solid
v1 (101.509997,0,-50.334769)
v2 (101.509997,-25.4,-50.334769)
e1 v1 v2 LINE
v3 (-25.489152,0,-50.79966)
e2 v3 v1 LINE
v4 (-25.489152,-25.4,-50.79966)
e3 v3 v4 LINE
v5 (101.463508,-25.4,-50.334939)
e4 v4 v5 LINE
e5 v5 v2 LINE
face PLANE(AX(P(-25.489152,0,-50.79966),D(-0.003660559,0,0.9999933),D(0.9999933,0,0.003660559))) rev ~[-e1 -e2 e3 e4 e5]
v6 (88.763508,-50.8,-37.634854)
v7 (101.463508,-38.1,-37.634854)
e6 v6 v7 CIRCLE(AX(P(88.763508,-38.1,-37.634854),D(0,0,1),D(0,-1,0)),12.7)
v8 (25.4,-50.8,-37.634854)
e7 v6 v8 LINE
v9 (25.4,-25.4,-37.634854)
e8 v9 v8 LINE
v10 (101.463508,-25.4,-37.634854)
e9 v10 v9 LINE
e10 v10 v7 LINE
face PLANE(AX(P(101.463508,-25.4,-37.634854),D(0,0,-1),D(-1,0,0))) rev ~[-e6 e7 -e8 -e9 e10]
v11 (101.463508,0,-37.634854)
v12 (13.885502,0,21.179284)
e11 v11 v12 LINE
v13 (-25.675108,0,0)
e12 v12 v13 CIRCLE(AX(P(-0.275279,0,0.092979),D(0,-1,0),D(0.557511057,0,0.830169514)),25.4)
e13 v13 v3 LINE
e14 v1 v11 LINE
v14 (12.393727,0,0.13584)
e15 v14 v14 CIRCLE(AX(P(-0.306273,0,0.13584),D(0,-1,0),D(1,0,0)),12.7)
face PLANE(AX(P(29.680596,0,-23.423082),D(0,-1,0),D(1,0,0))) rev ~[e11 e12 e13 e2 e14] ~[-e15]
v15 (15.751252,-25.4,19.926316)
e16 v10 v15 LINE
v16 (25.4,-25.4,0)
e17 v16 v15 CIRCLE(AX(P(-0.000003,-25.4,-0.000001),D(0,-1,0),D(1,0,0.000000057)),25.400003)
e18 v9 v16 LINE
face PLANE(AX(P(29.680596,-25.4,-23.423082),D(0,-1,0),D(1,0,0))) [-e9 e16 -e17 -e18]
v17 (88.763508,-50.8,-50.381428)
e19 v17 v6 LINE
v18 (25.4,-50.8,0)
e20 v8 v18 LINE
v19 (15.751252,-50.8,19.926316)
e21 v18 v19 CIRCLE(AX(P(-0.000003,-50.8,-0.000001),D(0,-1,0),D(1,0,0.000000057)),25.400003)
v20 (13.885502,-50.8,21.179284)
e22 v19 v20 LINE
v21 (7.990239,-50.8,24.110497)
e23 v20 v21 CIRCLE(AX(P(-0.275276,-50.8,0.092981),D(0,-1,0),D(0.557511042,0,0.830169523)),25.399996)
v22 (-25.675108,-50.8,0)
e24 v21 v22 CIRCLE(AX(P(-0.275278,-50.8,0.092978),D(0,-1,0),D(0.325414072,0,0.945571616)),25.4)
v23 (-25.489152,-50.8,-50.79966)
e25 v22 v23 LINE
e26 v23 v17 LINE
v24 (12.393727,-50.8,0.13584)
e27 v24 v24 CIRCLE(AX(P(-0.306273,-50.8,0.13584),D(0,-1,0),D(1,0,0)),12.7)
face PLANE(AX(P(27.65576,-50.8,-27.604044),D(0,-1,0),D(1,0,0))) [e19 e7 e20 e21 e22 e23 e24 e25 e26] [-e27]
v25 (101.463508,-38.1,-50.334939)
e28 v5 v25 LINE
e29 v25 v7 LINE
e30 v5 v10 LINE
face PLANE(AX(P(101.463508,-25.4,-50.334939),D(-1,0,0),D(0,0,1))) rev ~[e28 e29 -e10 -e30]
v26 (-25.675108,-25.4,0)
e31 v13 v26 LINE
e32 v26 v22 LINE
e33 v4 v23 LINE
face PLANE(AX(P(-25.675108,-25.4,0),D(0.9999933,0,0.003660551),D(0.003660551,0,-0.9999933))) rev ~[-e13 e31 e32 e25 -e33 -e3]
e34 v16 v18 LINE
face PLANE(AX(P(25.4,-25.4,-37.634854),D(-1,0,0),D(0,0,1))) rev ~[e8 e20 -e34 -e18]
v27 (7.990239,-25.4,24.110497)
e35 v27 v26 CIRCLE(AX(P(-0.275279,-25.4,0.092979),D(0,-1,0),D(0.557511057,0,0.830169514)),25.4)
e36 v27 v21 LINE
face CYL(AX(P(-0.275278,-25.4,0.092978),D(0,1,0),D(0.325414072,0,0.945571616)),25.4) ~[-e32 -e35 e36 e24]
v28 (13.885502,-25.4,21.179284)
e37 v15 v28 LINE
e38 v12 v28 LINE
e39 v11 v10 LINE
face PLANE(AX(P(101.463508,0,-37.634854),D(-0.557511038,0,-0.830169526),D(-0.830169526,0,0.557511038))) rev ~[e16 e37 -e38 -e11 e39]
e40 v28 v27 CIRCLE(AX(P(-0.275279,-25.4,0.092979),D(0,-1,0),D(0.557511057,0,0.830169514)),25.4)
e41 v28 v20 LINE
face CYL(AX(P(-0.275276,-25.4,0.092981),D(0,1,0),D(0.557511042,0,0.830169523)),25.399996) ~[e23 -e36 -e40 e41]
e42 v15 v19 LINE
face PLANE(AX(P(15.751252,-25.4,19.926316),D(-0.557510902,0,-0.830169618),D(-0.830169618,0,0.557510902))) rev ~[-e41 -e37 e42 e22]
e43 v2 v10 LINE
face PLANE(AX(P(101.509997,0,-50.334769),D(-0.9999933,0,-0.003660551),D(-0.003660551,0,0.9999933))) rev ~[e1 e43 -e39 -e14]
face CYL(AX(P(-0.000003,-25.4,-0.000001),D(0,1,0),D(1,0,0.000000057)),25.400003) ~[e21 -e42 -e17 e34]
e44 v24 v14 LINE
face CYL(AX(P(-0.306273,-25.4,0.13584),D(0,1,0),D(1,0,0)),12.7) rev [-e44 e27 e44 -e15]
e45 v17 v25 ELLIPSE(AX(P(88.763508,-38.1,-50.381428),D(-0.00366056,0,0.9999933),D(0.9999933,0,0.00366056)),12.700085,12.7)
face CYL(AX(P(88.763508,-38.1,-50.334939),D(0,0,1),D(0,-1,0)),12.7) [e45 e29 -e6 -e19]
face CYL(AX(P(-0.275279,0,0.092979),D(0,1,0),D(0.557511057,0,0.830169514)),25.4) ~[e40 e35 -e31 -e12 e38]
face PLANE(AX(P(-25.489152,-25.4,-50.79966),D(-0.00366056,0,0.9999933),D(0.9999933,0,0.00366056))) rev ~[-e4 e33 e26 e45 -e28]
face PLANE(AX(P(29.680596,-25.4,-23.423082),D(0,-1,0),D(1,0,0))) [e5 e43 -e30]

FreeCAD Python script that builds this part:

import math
import FreeCAD as App
import Part
import Sketcher
from FreeCAD import Vector
Q = App.Units.Quantity


def edges_at(feature, points):
    """Names of the edges that pass closest to the given points."""
    edges = feature.Shape.Edges
    near = lambda p: min(range(len(edges)), key=lambda i: edges[i].distToShape(Part.Vertex(*p))[0])
    return sorted({f"Edge{near(p) + 1}" for p in points})

doc = App.newDocument("Part")
body = doc.addObject("PartDesign::Body", "Body")

sketch1 = doc.addObject("Sketcher::SketchObject", "Sketch")
body.addObject(sketch1)
sketch1.AttachmentSupport = (doc.XZ_Plane, [""])
sketch1.MapMode = "FlatFace"
sketch1.addGeometry(Part.LineSegment(Vector(101.463508, -37.634854, 0), Vector(13.885502, 21.179284, 0)), False)
sketch1.addGeometry(Part.ArcOfCircle(Part.Circle(Vector(-0.275279, 0.092979, 0), Vector(0, 0, 1), 25.4), math.radians(56.116155), math.radians(180.209736)), False)
sketch1.addGeometry(Part.LineSegment(Vector(-25.675108, 0, 0), Vector(-25.489152, -50.79966, 0)), False)
sketch1.addGeometry(Part.LineSegment(Vector(-25.489152, -50.79966, 0), Vector(101.509997, -50.334769, 0)), False)
sketch1.addGeometry(Part.LineSegment(Vector(101.509997, -50.334769, 0), Vector(101.463508, -37.634854, 0)), False)
sketch1.addGeometry(Part.Circle(Vector(-0.306273, 0.13584, 0), Vector(0, 0, 1), 12.7), False)
sketch1.addConstraint(Sketcher.Constraint("Tangent", 0, 2, 1, 1))
sketch1.addConstraint(Sketcher.Constraint("Tangent", 1, 2, 2, 1))
sketch1.addConstraint(Sketcher.Constraint("Coincident", 2, 2, 3, 1))
sketch1.addConstraint(Sketcher.Constraint("Coincident", 3, 2, 4, 1))
sketch1.addConstraint(Sketcher.Constraint("Coincident", 4, 2, 0, 1))
sketch1.addConstraint(Sketcher.Constraint("PointOnObject", 1, 2, -1))
sketch1.addConstraint(Sketcher.Constraint("Perpendicular", 2, 3))
sketch1.addConstraint(Sketcher.Constraint("Perpendicular", 3, 4))
sketch1.addConstraint(Sketcher.Constraint("Diameter", 5, Q("1 in")))
sketch1.addConstraint(Sketcher.Constraint("Radius", 1, Q("1 in")))
sketch1.addConstraint(Sketcher.Constraint("Distance", 2, Q("2 in")))
sketch1.addConstraint(Sketcher.Constraint("Distance", 3, Q("5 in")))
sketch1.addConstraint(Sketcher.Constraint("Distance", 4, Q("0.5 in")))
sketch1.addConstraint(Sketcher.Constraint("DistanceY", 2, 2, 5, 3, Q("50.9355 mm")))
sketch1.addConstraint(Sketcher.Constraint("DistanceX", 1, 3, -1, 1, Q("0.275279 mm")))
sketch1.addConstraint(Sketcher.Constraint("DistanceY", -1, 1, 1, 3, Q("0.092979 mm")))
sketch1.addConstraint(Sketcher.Constraint("DistanceX", 2, 2, 5, 3, Q("25.182879 mm")))
pad1 = doc.addObject("PartDesign::Pad", "Pad")
body.addObject(pad1)
pad1.Profile = sketch1
pad1.Length = Q("1 in")

sketch2 = doc.addObject("Sketcher::SketchObject", "Sketch001")
body.addObject(sketch2)
sketch2.AttachmentSupport = (doc.XZ_Plane, [""])
sketch2.MapMode = "FlatFace"
sketch2.AttachmentOffset = App.Placement(Vector(0, 0, 1 * 25.4), App.Rotation())
sketch2.addGeometry(Part.LineSegment(Vector(25.4, -37.634854, 0), Vector(25.4, 0, 0)), False)
sketch2.addGeometry(Part.ArcOfCircle(Part.Circle(Vector(-0.000003, -0.000001, 0), Vector(0, 0, 1), 25.400003), math.radians(0.000003), math.radians(51.674512)), False)
sketch2.addGeometry(Part.LineSegment(Vector(15.751252, 19.926316, 0), Vector(13.885502, 21.179284, 0)), False)
sketch2.addGeometry(Part.ArcOfCircle(Part.Circle(Vector(-0.275276, 0.092981, 0), Vector(0, 0, 1), 25.399996), math.radians(56.116156), math.radians(71.009339)), False)
sketch2.addGeometry(Part.ArcOfCircle(Part.Circle(Vector(-0.275278, 0.092978, 0), Vector(0, 0, 1), 25.4), math.radians(71.009337), math.radians(180.209735)), False)
sketch2.addGeometry(Part.LineSegment(Vector(-25.675108, 0, 0), Vector(-25.489152, -50.79966, 0)), False)
sketch2.addGeometry(Part.LineSegment(Vector(-25.489152, -50.79966, 0), Vector(101.463508, -50.334939, 0)), False)
sketch2.addGeometry(Part.LineSegment(Vector(101.463508, -50.334939, 0), Vector(101.463508, -37.634854, 0)), False)
sketch2.addGeometry(Part.LineSegment(Vector(101.463508, -37.634854, 0), Vector(25.4, -37.634854, 0)), False)
sketch2.addGeometry(Part.Circle(Vector(-0.306273, 0.13584, 0), Vector(0, 0, 1), 12.7), False)
sketch2.addConstraint(Sketcher.Constraint("Coincident", 0, 2, 1, 1))
sketch2.addConstraint(Sketcher.Constraint("Coincident", 1, 2, 2, 1))
sketch2.addConstraint(Sketcher.Constraint("Coincident", 2, 2, 3, 1))
sketch2.addConstraint(Sketcher.Constraint("Coincident", 3, 2, 4, 1))
sketch2.addConstraint(Sketcher.Constraint("Coincident", 4, 2, 5, 1))
sketch2.addConstraint(Sketcher.Constraint("Coincident", 5, 2, 6, 1))
sketch2.addConstraint(Sketcher.Constraint("Coincident", 6, 2, 7, 1))
sketch2.addConstraint(Sketcher.Constraint("Coincident", 7, 2, 8, 1))
sketch2.addConstraint(Sketcher.Constraint("Coincident", 8, 2, 0, 1))
sketch2.addConstraint(Sketcher.Constraint("Vertical", 0))
sketch2.addConstraint(Sketcher.Constraint("Vertical", 7))
sketch2.addConstraint(Sketcher.Constraint("Horizontal", 8))
sketch2.addConstraint(Sketcher.Constraint("Coincident", 1, 3, -1, 1))
sketch2.addConstraint(Sketcher.Constraint("Coincident", 4, 3, 3, 3))
sketch2.addConstraint(Sketcher.Constraint("PointOnObject", 0, 2, -1))
sketch2.addConstraint(Sketcher.Constraint("PointOnObject", 4, 2, -1))
sketch2.addConstraint(Sketcher.Constraint("Diameter", 9, Q("1 in")))
sketch2.addConstraint(Sketcher.Constraint("Radius", 1, Q("1.0000001 in")))
sketch2.addConstraint(Sketcher.Constraint("Radius", 3, Q("0.9999998 in")))
sketch2.addConstraint(Sketcher.Constraint("Distance", 5, Q("2 in")))
sketch2.addConstraint(Sketcher.Constraint("DistanceX", 8, 2, 8, 1, Q("76.063508 mm")))
sketch2.addConstraint(Sketcher.Constraint("DistanceY", 5, 2, 9, 3, Q("50.9355 mm")))
sketch2.addConstraint(Sketcher.Constraint("Distance", 6, Q("126.953511 mm")))
sketch2.addConstraint(Sketcher.Constraint("DistanceY", 0, 1, 0, 2, Q("37.634854 mm")))
sketch2.addConstraint(Sketcher.Constraint("DistanceY", 7, 1, 7, 2, Q("12.700085 mm")))
sketch2.addConstraint(Sketcher.Constraint("DistanceY", -1, 1, 3, 3, Q("0.092981 mm")))
sketch2.addConstraint(Sketcher.Constraint("DistanceX", 4, 3, -1, 1, Q("0.275278 mm")))
sketch2.addConstraint(Sketcher.Constraint("DistanceX", -1, 1, 1, 2, Q("15.751252 mm")))
sketch2.addConstraint(Sketcher.Constraint("DistanceX", -1, 1, 3, 2, Q("7.990239 mm")))
sketch2.addConstraint(Sketcher.Constraint("DistanceX", 9, 3, 1, 3, Q("0.30627 mm")))
sketch2.addConstraint(Sketcher.Constraint("DistanceX", 2, 2, 1, 2, Q("1.86575 mm")))
pad2 = doc.addObject("PartDesign::Pad", "Pad001")
body.addObject(pad2)
pad2.Profile = sketch2
pad2.Length = Q("1 in")

sketch3 = doc.addObject("Sketcher::SketchObject", "Sketch002")
body.addObject(sketch3)
sketch3.AttachmentSupport = (doc.XZ_Plane, [""])
sketch3.MapMode = "FlatFace"
sketch3.AttachmentOffset = App.Placement(Vector(0, 0, 1 * 25.4), App.Rotation())
sketch3.addGeometry(Part.LineSegment(Vector(25.4, -37.634854, 0), Vector(25.4, 0, 0)), False)
sketch3.addGeometry(Part.ArcOfCircle(Part.Circle(Vector(-0.000003, -0.000001, 0), Vector(0, 0, 1), 25.400003), math.radians(0.000003), math.radians(51.674512)), False)
sketch3.addGeometry(Part.LineSegment(Vector(15.751252, 19.926316, 0), Vector(13.885502, 21.179284, 0)), False)
sketch3.addGeometry(Part.ArcOfCircle(Part.Circle(Vector(-0.275276, 0.092981, 0), Vector(0, 0, 1), 25.399996), math.radians(56.116156), math.radians(71.009339)), False)
sketch3.addGeometry(Part.ArcOfCircle(Part.Circle(Vector(-0.275278, 0.092978, 0), Vector(0, 0, 1), 25.4), math.radians(71.009337), math.radians(180.209735)), False)
sketch3.addGeometry(Part.LineSegment(Vector(-25.675108, 0, 0), Vector(-25.489152, -50.79966, 0)), False)
sketch3.addGeometry(Part.LineSegment(Vector(-25.489152, -50.79966, 0), Vector(101.463508, -50.334939, 0)), False)
sketch3.addGeometry(Part.LineSegment(Vector(101.463508, -50.334939, 0), Vector(101.463508, -37.634854, 0)), False)
sketch3.addGeometry(Part.LineSegment(Vector(101.463508, -37.634854, 0), Vector(25.4, -37.634854, 0)), False)
sketch3.addGeometry(Part.Circle(Vector(-0.306273, 0.13584, 0), Vector(0, 0, 1), 12.7), False)
sketch3.addConstraint(Sketcher.Constraint("Coincident", 0, 2, 1, 1))
sketch3.addConstraint(Sketcher.Constraint("Coincident", 1, 2, 2, 1))
sketch3.addConstraint(Sketcher.Constraint("Coincident", 2, 2, 3, 1))
sketch3.addConstraint(Sketcher.Constraint("Coincident", 3, 2, 4, 1))
sketch3.addConstraint(Sketcher.Constraint("Coincident", 4, 2, 5, 1))
sketch3.addConstraint(Sketcher.Constraint("Coincident", 5, 2, 6, 1))
sketch3.addConstraint(Sketcher.Constraint("Coincident", 6, 2, 7, 1))
sketch3.addConstraint(Sketcher.Constraint("Coincident", 7, 2, 8, 1))
sketch3.addConstraint(Sketcher.Constraint("Coincident", 8, 2, 0, 1))
sketch3.addConstraint(Sketcher.Constraint("Vertical", 0))
sketch3.addConstraint(Sketcher.Constraint("Vertical", 7))
sketch3.addConstraint(Sketcher.Constraint("Horizontal", 8))
sketch3.addConstraint(Sketcher.Constraint("Coincident", 1, 3, -1, 1))
sketch3.addConstraint(Sketcher.Constraint("Coincident", 4, 3, 3, 3))
sketch3.addConstraint(Sketcher.Constraint("PointOnObject", 0, 2, -1))
sketch3.addConstraint(Sketcher.Constraint("PointOnObject", 4, 2, -1))
sketch3.addConstraint(Sketcher.Constraint("Diameter", 9, Q("1 in")))
sketch3.addConstraint(Sketcher.Constraint("Radius", 1, Q("1.0000001 in")))
sketch3.addConstraint(Sketcher.Constraint("Radius", 3, Q("0.9999998 in")))
sketch3.addConstraint(Sketcher.Constraint("Distance", 5, Q("2 in")))
sketch3.addConstraint(Sketcher.Constraint("DistanceX", 8, 2, 8, 1, Q("76.063508 mm")))
sketch3.addConstraint(Sketcher.Constraint("DistanceY", 5, 2, 9, 3, Q("50.9355 mm")))
sketch3.addConstraint(Sketcher.Constraint("Distance", 6, Q("126.953511 mm")))
sketch3.addConstraint(Sketcher.Constraint("DistanceY", 0, 1, 0, 2, Q("37.634854 mm")))
sketch3.addConstraint(Sketcher.Constraint("DistanceY", 7, 1, 7, 2, Q("12.700085 mm")))
sketch3.addConstraint(Sketcher.Constraint("DistanceY", -1, 1, 3, 3, Q("0.092981 mm")))
sketch3.addConstraint(Sketcher.Constraint("DistanceX", 4, 3, -1, 1, Q("0.275278 mm")))
sketch3.addConstraint(Sketcher.Constraint("DistanceX", -1, 1, 1, 2, Q("15.751252 mm")))
sketch3.addConstraint(Sketcher.Constraint("DistanceX", -1, 1, 3, 2, Q("7.990239 mm")))
sketch3.addConstraint(Sketcher.Constraint("DistanceX", 9, 3, 1, 3, Q("0.30627 mm")))
sketch3.addConstraint(Sketcher.Constraint("DistanceX", 2, 2, 1, 2, Q("1.86575 mm")))
pad3 = doc.addObject("PartDesign::Pad", "Pad002")
body.addObject(pad3)
pad3.Profile = sketch3
pad3.Length = Q("1 in")
doc.recompute()

fillet = doc.addObject("PartDesign::Fillet", "Fillet")
body.addObject(fillet)
fillet.Base = (pad3, edges_at(pad3, [(101.464, -50.8, -43.985)]))
fillet.Radius = Q("0.5 in")

doc.recompute()
